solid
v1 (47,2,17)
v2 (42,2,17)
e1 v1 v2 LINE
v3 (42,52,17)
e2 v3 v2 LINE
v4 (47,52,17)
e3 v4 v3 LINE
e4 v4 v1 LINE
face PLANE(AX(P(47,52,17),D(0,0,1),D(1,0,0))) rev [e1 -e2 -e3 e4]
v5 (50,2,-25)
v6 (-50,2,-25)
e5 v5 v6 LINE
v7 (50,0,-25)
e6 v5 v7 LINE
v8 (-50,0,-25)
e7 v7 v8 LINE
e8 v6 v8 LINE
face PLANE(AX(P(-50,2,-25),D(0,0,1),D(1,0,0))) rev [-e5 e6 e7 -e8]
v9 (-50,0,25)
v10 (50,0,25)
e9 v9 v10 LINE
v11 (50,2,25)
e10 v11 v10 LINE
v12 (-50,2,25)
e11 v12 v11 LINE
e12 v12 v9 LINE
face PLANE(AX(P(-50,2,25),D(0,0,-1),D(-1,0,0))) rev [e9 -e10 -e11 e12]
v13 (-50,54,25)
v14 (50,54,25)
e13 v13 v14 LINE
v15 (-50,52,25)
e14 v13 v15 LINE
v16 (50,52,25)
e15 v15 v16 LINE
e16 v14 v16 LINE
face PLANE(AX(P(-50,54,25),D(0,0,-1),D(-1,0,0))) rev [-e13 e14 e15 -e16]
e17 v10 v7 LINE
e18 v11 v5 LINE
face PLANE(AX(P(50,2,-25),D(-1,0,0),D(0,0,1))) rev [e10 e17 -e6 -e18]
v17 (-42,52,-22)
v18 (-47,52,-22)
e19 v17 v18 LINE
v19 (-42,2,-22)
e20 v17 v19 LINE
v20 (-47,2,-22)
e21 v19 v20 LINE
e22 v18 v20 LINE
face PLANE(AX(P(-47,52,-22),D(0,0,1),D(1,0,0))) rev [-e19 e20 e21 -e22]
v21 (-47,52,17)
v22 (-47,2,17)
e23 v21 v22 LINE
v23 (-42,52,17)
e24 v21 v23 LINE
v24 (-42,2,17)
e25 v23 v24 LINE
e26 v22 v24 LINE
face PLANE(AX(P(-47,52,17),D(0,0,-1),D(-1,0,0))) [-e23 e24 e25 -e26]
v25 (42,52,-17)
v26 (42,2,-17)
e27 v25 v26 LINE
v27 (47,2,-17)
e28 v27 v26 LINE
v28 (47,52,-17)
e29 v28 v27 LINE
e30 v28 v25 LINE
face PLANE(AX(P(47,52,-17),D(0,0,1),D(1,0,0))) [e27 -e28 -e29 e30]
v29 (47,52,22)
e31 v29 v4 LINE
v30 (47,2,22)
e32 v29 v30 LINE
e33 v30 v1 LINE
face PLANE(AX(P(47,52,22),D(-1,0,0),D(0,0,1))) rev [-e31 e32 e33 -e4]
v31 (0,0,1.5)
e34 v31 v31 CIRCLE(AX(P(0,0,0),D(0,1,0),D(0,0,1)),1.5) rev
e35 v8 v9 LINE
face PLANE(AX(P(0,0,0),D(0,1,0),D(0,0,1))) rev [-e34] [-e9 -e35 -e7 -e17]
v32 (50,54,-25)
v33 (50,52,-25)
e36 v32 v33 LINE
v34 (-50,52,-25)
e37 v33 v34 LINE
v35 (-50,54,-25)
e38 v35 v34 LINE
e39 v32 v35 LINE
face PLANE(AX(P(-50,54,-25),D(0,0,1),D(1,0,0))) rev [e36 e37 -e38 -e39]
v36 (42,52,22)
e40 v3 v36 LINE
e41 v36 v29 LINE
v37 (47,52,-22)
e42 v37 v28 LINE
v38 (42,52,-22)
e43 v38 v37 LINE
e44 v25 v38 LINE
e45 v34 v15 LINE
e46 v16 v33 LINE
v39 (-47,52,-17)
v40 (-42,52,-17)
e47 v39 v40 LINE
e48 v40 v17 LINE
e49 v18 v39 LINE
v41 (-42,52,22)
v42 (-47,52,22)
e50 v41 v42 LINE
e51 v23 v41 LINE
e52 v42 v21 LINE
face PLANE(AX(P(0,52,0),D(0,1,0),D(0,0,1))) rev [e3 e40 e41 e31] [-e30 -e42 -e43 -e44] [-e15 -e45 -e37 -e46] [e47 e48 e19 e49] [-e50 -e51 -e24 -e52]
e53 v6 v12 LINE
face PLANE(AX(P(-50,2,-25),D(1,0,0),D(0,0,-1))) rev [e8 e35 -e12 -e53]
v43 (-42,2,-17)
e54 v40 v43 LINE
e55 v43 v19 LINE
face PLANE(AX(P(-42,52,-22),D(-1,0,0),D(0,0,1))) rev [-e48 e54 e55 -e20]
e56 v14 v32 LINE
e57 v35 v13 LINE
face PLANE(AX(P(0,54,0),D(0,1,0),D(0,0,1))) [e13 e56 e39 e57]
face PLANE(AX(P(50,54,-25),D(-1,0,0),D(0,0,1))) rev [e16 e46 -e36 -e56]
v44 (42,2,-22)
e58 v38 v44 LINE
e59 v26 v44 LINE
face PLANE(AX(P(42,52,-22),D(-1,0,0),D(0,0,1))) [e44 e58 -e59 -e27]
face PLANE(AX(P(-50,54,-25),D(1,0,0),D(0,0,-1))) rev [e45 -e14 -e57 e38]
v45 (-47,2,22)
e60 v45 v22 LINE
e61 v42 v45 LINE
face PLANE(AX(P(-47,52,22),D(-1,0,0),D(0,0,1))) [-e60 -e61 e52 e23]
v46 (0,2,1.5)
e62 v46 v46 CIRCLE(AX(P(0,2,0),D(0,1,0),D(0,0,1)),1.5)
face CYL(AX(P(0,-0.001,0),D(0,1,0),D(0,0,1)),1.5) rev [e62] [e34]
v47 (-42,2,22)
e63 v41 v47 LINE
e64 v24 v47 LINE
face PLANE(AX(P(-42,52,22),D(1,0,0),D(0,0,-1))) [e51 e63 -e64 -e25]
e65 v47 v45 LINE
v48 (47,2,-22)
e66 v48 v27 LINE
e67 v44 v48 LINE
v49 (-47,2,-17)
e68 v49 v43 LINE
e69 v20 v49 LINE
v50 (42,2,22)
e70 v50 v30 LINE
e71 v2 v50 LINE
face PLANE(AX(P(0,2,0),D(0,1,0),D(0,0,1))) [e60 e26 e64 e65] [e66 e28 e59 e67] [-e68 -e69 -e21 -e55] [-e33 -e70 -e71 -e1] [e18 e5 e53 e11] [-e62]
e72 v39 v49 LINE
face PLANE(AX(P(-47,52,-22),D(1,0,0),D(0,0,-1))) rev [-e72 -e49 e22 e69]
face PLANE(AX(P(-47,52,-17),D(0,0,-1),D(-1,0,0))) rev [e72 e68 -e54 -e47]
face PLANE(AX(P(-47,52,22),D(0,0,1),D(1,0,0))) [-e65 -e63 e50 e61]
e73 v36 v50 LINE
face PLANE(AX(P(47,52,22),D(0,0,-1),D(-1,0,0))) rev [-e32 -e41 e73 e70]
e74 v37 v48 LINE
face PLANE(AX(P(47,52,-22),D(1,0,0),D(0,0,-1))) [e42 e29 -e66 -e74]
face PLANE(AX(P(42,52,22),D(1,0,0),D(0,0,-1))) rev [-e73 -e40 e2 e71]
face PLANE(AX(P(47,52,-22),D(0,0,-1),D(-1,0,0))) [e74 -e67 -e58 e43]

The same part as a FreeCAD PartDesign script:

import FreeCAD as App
import Part
import Sketcher


def add_polygon(sketch, points):
    """Adds a closed chain of lines whose ends are joined by coincident constraints."""
    first, n = sketch.GeometryCount, len(points)
    for a, b in zip(points, points[1:] + points[:1]):
        sketch.addGeometry(Part.LineSegment(App.Vector(*a, 0), App.Vector(*b, 0)), False)
    for i in range(n):
        sketch.addConstraint(Sketcher.Constraint("Coincident", first + i, 2, first + (i + 1) % n, 1))

doc = App.newDocument("Part")
params = doc.addObject("Spreadsheet::Sheet", "Params")
for row, (alias, value) in enumerate([
    ("sketch1_width", "100 mm"),
    ("sketch1_height", "50 mm"),
    ("pad1_length", "2 mm"),
    ("sketch2_diameter", "3 mm"),
    ("sketch3_width", "5 mm"),
    ("pad2_length", "50 mm"),
    ("sketch4_width", "5 mm"),
    ("pad3_length", "50 mm"),
    ("sketch5_width", "100 mm"),
    ("sketch5_height", "50 mm"),
    ("pad4_length", "2 mm"),
], start=1):
    params.set(f"A{row}", alias)
    params.set(f"B{row}", "=" + value)
    params.setAlias(f"B{row}", alias)

body = doc.addObject("PartDesign::Body", "Body")

# Sketch on XZ plane
sketch1 = doc.addObject("Sketcher::SketchObject", "Sketch")
body.addObject(sketch1)
sketch1.AttachmentSupport = (doc.XZ_Plane, [""])
sketch1.MapMode = "FlatFace"
add_polygon(sketch1, [(-50, -25), (-50, 25), (50, 25), (50, -25)])  # lines 0-3
sketch1.addConstraint([
    Sketcher.Constraint("Vertical", 0),
    Sketcher.Constraint("Horizontal", 1),
    Sketcher.Constraint("Vertical", 2),
    Sketcher.Constraint("Horizontal", 3),
    Sketcher.Constraint("Symmetric", 0, 2, 2, 2, -1, 1),
    Sketcher.Constraint("DistanceX", 1, 1, 1, 2, 100.0),
    Sketcher.Constraint("DistanceY", 0, 1, 0, 2, 50.0),
])
sketch1.setExpression("Constraints[9]", "Params.sketch1_width")
sketch1.setExpression("Constraints[10]", "Params.sketch1_height")
pad1 = doc.addObject("PartDesign::Pad", "Pad")
body.addObject(pad1)
pad1.Profile = sketch1
pad1.setExpression("Length", "Params.pad1_length")
pad1.Reversed = True

# Sketch on XZ plane
sketch2 = doc.addObject("Sketcher::SketchObject", "Sketch001")
body.addObject(sketch2)
sketch2.AttachmentSupport = (doc.XZ_Plane, [""])
sketch2.MapMode = "FlatFace"
sketch2.AttachmentOffset = App.Placement(App.Vector(0, 0, -2), App.Rotation())
sketch2.addGeometry(Part.Circle(App.Vector(0, 0, 0), App.Vector(0, 0, 1), 1.5), False)
sketch2.addConstraint([
    Sketcher.Constraint("Coincident", 0, 3, -1, 1),
    Sketcher.Constraint("Diameter", 0, 3.0),
])
sketch2.setExpression("Constraints[1]", "Params.sketch2_diameter")
pocket1 = doc.addObject("PartDesign::Pocket", "Pocket")
body.addObject(pocket1)
pocket1.Profile = sketch2
pocket1.Type = "UpToFirst"
pocket1.Reversed = True

# Sketch on XZ plane
sketch3 = doc.addObject("Sketcher::SketchObject", "Sketch002")
body.addObject(sketch3)
sketch3.AttachmentSupport = (doc.XZ_Plane, [""])
sketch3.MapMode = "FlatFace"
sketch3.AttachmentOffset = App.Placement(App.Vector(0, 0, -2), App.Rotation())
add_polygon(sketch3, [(-47, -22), (-47, -17), (-42, -17), (-42, -22)])  # lines 0-3
sketch3.addConstraint([
    Sketcher.Constraint("Vertical", 0),
    Sketcher.Constraint("Horizontal", 1),
    Sketcher.Constraint("Vertical", 2),
    Sketcher.Constraint("Horizontal", 3),
    Sketcher.Constraint("Equal", 3, 0),
    Sketcher.Constraint("DistanceX", 1, 1, 1, 2, 5.0),
    Sketcher.Constraint("DistanceX", 0, 2, -1, 1, 47.0),
    Sketcher.Constraint("DistanceY", 0, 2, -1, 1, 17.0),
])
sketch3.setExpression("Constraints[9]", "Params.sketch3_width")
pad2 = doc.addObject("PartDesign::Pad", "Pad001")
body.addObject(pad2)
pad2.Profile = sketch3
pad2.setExpression("Length", "Params.pad2_length")
pad2.Reversed = True
doc.recompute()

mirrored = doc.addObject("PartDesign::Mirrored", "Mirrored")
body.addObject(mirrored)
mirrored.Originals = [pad2]
mirrored.MirrorPlane = (doc.XY_Plane, [""])
body.Tip = mirrored
doc.recompute()

mirrored2 = doc.addObject("PartDesign::Mirrored", "Mirrored001")
body.addObject(mirrored2)
mirrored2.Originals = [pad2]
mirrored2.MirrorPlane = (doc.YZ_Plane, [""])
body.Tip = mirrored2

# Sketch on XZ plane
sketch4 = doc.addObject("Sketcher::SketchObject", "Sketch003")
body.addObject(sketch4)
sketch4.AttachmentSupport = (doc.XZ_Plane, [""])
sketch4.MapMode = "FlatFace"
sketch4.AttachmentOffset = App.Placement(App.Vector(0, 0, -2), App.Rotation())
add_polygon(sketch4, [(47, 22), (47, 17), (42, 17), (42, 22)])  # lines 0-3
sketch4.addConstraint([
    Sketcher.Constraint("Vertical", 0),
    Sketcher.Constraint("Horizontal", 1),
    Sketcher.Constraint("Vertical", 2),
    Sketcher.Constraint("Horizontal", 3),
    Sketcher.Constraint("Equal", 3, 0),
    Sketcher.Constraint("DistanceX", 1, 2, 1, 1, 5.0),
    Sketcher.Constraint("DistanceX", -1, 1, 0, 2, 47.0),
    Sketcher.Constraint("DistanceY", -1, 1, 0, 2, 17.0),
])
sketch4.setExpression("Constraints[9]", "Params.sketch4_width")
pad3 = doc.addObject("PartDesign::Pad", "Pad002")
body.addObject(pad3)
pad3.Profile = sketch4
pad3.setExpression("Length", "Params.pad3_length")
pad3.Reversed = True

# Sketch on XZ plane
sketch5 = doc.addObject("Sketcher::SketchObject", "Sketch004")
body.addObject(sketch5)
sketch5.AttachmentSupport = (doc.XZ_Plane, [""])
sketch5.MapMode = "FlatFace"
sketch5.AttachmentOffset = App.Placement(App.Vector(0, 0, -52), App.Rotation())
add_polygon(sketch5, [(-50, -25), (-50, 25), (50, 25), (50, -25)])  # lines 0-3
sketch5.addConstraint([
    Sketcher.Constraint("Vertical", 0),
    Sketcher.Constraint("Horizontal", 1),
    Sketcher.Constraint("Vertical", 2),
    Sketcher.Constraint("Horizontal", 3),
    Sketcher.Constraint("Symmetric", 0, 2, 2, 2, -1, 1),
    Sketcher.Constraint("DistanceX", 1, 1, 1, 2, 100.0),
    Sketcher.Constraint("DistanceY", 0, 1, 0, 2, 50.0),
])
sketch5.setExpression("Constraints[9]", "Params.sketch5_width")
sketch5.setExpression("Constraints[10]", "Params.sketch5_height")
pad4 = doc.addObject("PartDesign::Pad", "Pad003")
body.addObject(pad4)
pad4.Profile = sketch5
pad4.setExpression("Length", "Params.pad4_length")
pad4.Reversed = True

doc.recompute()
